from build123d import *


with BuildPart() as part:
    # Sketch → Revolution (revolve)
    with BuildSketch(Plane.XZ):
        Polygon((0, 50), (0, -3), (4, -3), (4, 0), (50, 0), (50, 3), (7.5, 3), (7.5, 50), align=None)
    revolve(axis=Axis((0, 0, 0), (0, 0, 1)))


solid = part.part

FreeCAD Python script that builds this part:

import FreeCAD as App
import Part
import Sketcher

doc = App.newDocument("Part")
body = doc.addObject("PartDesign::Body", "Body")

sketch1 = body.newObject("Sketcher::SketchObject", "Sketch")
sketch1.AttachmentSupport = (doc.getObject("XZ_Plane"), [""])
sketch1.MapMode = "FlatFace"
sketch1.addGeometry([
    Part.LineSegment(App.Vector(0, 50, 0), App.Vector(0, -3, 0)),
    Part.LineSegment(App.Vector(0, -3, 0), App.Vector(4, -3, 0)),
    Part.LineSegment(App.Vector(4, -3, 0), App.Vector(4, 0, 0)),
    Part.LineSegment(App.Vector(4, 0, 0), App.Vector(50, 0, 0)),
    Part.LineSegment(App.Vector(50, 0, 0), App.Vector(50, 3, 0)),
    Part.LineSegment(App.Vector(50, 3, 0), App.Vector(7.5, 3, 0)),
    Part.LineSegment(App.Vector(7.5, 3, 0), App.Vector(7.5, 50, 0)),
    Part.LineSegment(App.Vector(7.5, 50, 0), App.Vector(0, 50, 0)),
], False)
sketch1.addConstraint([
    Sketcher.Constraint("Coincident", 0, 2, 1, 1),
    Sketcher.Constraint("Coincident", 1, 2, 2, 1),
    Sketcher.Constraint("Coincident", 2, 2, 3, 1),
    Sketcher.Constraint("Coincident", 3, 2, 4, 1),
    Sketcher.Constraint("Coincident", 4, 2, 5, 1),
    Sketcher.Constraint("Coincident", 5, 2, 6, 1),
    Sketcher.Constraint("Coincident", 6, 2, 7, 1),
    Sketcher.Constraint("Coincident", 7, 2, 0, 1),
    Sketcher.Constraint("Vertical", 0),
    Sketcher.Constraint("Horizontal", 1),
    Sketcher.Constraint("Vertical", 2),
    Sketcher.Constraint("Horizontal", 3),
    Sketcher.Constraint("Vertical", 4),
    Sketcher.Constraint("Horizontal", 5),
    Sketcher.Constraint("Vertical", 6),
    Sketcher.Constraint("Horizontal", 7),
    Sketcher.Constraint("PointOnObject", 0, 2, -2),
    Sketcher.Constraint("PointOnObject", 2, 2, -1),
    Sketcher.Constraint("Equal", 2, 4),
    Sketcher.Constraint("DistanceX", 1, 1, 1, 2, 4.0),
    Sketcher.Constraint("DistanceX", 3, 1, 3, 2, 46.0),
    Sketcher.Constraint("DistanceY", 0, 2, 0, 1, 53.0),
    Sketcher.Constraint("DistanceY", 2, 1, 2, 2, 3.0),
    Sketcher.Constraint("DistanceX", 5, 2, 5, 1, 42.5),
])
revolution = body.newObject("PartDesign::Revolution", "Revolution")
revolution.Profile = sketch1
revolution.ReferenceAxis = (sketch1, ["V_Axis"])
revolution.Angle = 360

doc.recompute()
